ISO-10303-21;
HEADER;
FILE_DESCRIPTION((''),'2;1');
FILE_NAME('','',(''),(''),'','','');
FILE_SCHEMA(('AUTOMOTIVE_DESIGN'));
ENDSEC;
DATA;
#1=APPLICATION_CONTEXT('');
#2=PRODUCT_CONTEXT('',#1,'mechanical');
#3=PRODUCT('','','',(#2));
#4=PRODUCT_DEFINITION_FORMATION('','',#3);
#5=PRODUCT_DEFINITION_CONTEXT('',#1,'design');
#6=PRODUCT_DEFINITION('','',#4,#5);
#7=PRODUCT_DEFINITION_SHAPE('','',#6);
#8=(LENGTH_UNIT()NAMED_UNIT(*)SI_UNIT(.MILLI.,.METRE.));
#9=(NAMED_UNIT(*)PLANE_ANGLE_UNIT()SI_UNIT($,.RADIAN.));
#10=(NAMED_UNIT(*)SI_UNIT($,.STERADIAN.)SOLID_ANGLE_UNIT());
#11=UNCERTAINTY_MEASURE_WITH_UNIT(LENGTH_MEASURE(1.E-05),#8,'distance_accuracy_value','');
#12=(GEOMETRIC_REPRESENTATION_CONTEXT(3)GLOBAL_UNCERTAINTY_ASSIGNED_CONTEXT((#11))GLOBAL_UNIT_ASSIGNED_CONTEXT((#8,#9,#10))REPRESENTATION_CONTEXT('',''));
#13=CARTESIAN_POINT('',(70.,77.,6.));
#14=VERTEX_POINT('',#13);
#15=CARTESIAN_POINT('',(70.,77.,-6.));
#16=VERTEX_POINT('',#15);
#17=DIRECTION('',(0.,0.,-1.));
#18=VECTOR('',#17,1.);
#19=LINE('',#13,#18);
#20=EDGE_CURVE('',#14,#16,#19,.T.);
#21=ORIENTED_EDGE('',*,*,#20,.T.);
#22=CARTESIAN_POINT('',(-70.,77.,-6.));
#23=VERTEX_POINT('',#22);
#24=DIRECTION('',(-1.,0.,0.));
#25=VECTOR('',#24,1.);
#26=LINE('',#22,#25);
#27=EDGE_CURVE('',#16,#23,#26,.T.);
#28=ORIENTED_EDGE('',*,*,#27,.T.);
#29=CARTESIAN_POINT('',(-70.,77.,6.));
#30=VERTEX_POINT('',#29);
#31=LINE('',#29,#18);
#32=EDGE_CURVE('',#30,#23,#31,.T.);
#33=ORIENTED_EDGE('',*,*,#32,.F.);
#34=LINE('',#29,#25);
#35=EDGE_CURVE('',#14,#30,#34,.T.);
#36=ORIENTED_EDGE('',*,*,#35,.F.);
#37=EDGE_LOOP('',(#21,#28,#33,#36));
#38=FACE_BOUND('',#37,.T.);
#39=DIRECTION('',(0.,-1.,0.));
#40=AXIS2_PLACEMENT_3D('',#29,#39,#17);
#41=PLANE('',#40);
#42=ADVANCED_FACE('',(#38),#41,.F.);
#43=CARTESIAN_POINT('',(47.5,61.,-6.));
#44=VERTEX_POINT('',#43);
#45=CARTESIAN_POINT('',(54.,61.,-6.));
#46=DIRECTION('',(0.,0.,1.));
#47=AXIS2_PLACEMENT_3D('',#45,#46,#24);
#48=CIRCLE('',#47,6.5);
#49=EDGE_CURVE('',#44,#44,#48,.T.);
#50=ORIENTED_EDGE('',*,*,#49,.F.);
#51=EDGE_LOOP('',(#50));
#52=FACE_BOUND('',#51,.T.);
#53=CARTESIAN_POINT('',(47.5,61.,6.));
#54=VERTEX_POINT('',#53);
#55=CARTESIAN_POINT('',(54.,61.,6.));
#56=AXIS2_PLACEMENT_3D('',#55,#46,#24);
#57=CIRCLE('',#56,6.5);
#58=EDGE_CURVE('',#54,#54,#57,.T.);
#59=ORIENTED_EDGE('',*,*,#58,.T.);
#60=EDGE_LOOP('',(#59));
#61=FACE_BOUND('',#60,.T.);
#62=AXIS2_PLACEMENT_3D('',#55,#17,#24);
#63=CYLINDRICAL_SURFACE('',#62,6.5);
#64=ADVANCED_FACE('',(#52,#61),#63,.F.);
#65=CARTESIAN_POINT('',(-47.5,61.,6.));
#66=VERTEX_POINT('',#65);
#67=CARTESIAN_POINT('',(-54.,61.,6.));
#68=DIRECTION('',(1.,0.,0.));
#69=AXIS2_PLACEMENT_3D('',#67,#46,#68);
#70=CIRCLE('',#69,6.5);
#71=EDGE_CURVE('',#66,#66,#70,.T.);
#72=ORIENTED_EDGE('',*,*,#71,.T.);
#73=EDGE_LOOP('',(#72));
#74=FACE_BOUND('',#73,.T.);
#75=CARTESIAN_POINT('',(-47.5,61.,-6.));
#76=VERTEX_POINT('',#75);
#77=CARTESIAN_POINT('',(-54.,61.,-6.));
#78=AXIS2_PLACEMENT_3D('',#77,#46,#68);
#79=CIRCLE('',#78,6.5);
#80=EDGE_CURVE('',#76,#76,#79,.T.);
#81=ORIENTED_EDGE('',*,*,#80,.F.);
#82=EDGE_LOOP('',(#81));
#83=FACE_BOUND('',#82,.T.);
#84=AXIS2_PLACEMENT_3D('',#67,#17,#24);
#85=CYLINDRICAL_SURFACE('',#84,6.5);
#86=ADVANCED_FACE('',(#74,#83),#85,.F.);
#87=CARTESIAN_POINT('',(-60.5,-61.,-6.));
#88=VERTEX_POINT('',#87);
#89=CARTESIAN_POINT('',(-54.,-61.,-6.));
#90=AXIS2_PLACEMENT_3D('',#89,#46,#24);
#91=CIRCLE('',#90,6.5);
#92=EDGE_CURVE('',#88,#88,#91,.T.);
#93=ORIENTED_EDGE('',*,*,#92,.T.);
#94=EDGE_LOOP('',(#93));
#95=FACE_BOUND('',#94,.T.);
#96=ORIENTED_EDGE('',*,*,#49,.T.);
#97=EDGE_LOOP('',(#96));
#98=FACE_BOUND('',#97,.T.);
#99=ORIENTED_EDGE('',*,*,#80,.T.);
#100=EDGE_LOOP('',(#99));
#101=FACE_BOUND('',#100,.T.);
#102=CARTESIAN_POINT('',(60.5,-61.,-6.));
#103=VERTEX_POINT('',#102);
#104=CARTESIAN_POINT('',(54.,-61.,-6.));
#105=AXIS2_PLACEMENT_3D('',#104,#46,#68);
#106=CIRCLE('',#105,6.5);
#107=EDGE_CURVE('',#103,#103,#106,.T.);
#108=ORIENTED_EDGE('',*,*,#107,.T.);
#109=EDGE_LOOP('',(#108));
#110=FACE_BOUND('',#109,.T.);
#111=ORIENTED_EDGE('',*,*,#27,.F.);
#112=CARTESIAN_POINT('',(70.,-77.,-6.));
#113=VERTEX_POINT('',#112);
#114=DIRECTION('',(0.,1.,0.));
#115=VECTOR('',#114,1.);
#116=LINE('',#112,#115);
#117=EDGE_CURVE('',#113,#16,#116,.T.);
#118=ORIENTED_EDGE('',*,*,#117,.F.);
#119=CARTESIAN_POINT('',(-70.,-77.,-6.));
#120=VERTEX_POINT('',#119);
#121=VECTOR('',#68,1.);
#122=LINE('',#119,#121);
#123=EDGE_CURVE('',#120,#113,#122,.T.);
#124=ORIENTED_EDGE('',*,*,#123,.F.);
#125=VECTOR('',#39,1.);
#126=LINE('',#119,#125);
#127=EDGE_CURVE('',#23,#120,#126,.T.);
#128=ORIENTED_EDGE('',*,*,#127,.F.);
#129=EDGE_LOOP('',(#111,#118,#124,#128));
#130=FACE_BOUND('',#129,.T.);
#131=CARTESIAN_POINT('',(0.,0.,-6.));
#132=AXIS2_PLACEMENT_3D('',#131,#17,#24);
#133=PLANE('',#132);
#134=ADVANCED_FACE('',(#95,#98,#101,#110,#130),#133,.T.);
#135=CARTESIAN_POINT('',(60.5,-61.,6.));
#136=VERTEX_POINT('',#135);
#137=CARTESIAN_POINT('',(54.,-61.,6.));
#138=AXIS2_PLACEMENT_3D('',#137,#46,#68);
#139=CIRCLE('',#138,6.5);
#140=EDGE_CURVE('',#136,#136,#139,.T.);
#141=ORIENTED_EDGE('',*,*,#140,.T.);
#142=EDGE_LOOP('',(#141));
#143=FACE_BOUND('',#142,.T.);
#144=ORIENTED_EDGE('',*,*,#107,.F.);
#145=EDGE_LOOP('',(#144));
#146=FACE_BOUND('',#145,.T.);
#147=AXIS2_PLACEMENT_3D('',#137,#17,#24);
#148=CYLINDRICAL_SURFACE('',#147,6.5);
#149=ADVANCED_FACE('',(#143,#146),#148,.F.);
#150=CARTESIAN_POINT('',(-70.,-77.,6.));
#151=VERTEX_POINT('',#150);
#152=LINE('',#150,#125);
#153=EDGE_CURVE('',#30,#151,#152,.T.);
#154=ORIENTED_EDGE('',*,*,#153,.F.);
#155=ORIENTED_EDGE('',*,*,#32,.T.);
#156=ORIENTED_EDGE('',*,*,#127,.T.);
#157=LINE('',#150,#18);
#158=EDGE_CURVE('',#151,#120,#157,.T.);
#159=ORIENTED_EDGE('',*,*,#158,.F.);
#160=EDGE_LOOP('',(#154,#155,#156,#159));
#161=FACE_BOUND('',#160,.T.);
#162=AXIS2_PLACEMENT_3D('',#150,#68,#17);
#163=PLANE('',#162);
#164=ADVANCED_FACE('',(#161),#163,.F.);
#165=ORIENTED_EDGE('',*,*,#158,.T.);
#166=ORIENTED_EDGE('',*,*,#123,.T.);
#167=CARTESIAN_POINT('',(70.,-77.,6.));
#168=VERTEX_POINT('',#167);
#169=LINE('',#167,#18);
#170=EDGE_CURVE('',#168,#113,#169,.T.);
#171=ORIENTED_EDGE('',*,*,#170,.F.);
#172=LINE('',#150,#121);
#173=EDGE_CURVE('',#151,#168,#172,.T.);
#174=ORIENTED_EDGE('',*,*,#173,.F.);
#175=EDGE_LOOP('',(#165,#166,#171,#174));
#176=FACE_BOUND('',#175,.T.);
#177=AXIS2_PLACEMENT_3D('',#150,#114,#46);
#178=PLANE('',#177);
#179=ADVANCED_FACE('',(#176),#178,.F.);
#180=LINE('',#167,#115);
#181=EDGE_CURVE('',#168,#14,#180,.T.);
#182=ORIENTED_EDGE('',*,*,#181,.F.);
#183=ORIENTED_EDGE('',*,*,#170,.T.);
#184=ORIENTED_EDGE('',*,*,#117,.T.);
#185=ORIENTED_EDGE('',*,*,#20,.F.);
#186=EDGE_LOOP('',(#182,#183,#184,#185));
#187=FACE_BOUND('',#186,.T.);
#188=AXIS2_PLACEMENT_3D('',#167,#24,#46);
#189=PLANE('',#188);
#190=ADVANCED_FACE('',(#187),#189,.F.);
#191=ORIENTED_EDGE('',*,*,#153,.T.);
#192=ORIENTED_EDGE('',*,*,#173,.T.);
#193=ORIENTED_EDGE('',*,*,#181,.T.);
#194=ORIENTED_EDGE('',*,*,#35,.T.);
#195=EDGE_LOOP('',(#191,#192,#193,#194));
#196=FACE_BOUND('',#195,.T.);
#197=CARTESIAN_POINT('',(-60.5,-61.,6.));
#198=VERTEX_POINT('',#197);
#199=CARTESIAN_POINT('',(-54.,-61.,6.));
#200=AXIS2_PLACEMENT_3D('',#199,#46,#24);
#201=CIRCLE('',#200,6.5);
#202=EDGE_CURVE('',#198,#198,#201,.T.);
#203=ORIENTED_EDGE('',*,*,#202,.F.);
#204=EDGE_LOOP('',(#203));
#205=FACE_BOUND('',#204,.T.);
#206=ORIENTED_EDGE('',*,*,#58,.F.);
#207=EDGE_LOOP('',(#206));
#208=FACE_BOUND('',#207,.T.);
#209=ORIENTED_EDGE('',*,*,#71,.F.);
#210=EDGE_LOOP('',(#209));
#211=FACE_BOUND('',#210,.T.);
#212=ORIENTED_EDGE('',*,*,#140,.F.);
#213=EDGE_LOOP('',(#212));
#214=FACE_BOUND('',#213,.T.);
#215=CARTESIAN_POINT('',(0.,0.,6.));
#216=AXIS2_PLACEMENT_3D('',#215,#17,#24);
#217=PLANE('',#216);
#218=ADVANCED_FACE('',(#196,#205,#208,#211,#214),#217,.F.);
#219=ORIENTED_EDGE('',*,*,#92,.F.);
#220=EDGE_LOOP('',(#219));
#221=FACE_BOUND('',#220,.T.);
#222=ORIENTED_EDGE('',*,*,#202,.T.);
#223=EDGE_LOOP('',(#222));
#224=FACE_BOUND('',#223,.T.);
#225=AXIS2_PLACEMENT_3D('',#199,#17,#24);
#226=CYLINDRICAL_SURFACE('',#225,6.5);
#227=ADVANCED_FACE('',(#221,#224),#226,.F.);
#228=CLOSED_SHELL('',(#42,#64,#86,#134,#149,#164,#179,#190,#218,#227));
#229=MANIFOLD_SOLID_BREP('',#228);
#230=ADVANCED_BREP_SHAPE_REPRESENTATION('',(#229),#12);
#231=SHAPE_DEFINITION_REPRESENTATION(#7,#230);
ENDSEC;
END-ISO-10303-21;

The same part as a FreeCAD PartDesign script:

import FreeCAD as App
import Part
import Sketcher
from FreeCAD import Vector
Q = App.Units.Quantity

doc = App.newDocument("Part")
body = doc.addObject("PartDesign::Body", "Body")

# Sketch on XY plane
sketch1 = body.newObject("Sketcher::SketchObject", "Sketch")
sketch1.AttachmentSupport = (doc.getObject("XY_Plane"), [""])
sketch1.MapMode = "FlatFace"
sketch1.addGeometry([
    Part.LineSegment(Vector(-70, 77, 0), Vector(-70, -77, 0)),  # 0
    Part.LineSegment(Vector(-70, -77, 0), Vector(70, -77, 0)),  # 1
    Part.LineSegment(Vector(70, -77, 0), Vector(70, 77, 0)),  # 2
    Part.LineSegment(Vector(70, 77, 0), Vector(-70, 77, 0)),  # 3
    Part.Circle(Vector(-54, -61, 0), Vector(0, 0, 1), 6.5),  # 4
    Part.Circle(Vector(54, -61, 0), Vector(0, 0, 1), 6.5),  # 5
    Part.Circle(Vector(-54, 61, 0), Vector(0, 0, 1), 6.5),  # 6
    Part.Circle(Vector(54, 61, 0), Vector(0, 0, 1), 6.5),  # 7
], False)
sketch1.addConstraint([
    Sketcher.Constraint("Coincident", 0, 2, 1, 1),
    Sketcher.Constraint("Coincident", 1, 2, 2, 1),
    Sketcher.Constraint("Coincident", 2, 2, 3, 1),
    Sketcher.Constraint("Coincident", 3, 2, 0, 1),
    Sketcher.Constraint("Vertical", 0),
    Sketcher.Constraint("Horizontal", 1),
    Sketcher.Constraint("Vertical", 2),
    Sketcher.Constraint("Horizontal", 3),
    Sketcher.Constraint("Equal", 4, 5),
    Sketcher.Constraint("Equal", 5, 6),
    Sketcher.Constraint("Equal", 6, 7),
    Sketcher.Constraint("Symmetric", 5, 3, 6, 3, -1, 1),
    Sketcher.Constraint("Symmetric", 4, 3, 7, 3, -1, 1),
    Sketcher.Constraint("Symmetric", 0, 2, 2, 2, -1, 1),
    Sketcher.Constraint("Symmetric", 4, 3, 5, 3, -2),
    Sketcher.Constraint("Diameter", 4, Q("13 mm")),
    Sketcher.Constraint("DistanceX", 1, 1, 1, 2, Q("140 mm")),
    Sketcher.Constraint("DistanceY", 0, 2, 0, 1, Q("154 mm")),
    Sketcher.Constraint("DistanceX", 4, 3, -1, 1, Q("54 mm")),
    Sketcher.Constraint("DistanceY", 4, 3, -1, 1, Q("61 mm")),
])
pad1 = body.newObject("PartDesign::Pad", "Pad")
pad1.Profile = sketch1
pad1.Length = 12
pad1.Midplane = True

doc.recompute()
